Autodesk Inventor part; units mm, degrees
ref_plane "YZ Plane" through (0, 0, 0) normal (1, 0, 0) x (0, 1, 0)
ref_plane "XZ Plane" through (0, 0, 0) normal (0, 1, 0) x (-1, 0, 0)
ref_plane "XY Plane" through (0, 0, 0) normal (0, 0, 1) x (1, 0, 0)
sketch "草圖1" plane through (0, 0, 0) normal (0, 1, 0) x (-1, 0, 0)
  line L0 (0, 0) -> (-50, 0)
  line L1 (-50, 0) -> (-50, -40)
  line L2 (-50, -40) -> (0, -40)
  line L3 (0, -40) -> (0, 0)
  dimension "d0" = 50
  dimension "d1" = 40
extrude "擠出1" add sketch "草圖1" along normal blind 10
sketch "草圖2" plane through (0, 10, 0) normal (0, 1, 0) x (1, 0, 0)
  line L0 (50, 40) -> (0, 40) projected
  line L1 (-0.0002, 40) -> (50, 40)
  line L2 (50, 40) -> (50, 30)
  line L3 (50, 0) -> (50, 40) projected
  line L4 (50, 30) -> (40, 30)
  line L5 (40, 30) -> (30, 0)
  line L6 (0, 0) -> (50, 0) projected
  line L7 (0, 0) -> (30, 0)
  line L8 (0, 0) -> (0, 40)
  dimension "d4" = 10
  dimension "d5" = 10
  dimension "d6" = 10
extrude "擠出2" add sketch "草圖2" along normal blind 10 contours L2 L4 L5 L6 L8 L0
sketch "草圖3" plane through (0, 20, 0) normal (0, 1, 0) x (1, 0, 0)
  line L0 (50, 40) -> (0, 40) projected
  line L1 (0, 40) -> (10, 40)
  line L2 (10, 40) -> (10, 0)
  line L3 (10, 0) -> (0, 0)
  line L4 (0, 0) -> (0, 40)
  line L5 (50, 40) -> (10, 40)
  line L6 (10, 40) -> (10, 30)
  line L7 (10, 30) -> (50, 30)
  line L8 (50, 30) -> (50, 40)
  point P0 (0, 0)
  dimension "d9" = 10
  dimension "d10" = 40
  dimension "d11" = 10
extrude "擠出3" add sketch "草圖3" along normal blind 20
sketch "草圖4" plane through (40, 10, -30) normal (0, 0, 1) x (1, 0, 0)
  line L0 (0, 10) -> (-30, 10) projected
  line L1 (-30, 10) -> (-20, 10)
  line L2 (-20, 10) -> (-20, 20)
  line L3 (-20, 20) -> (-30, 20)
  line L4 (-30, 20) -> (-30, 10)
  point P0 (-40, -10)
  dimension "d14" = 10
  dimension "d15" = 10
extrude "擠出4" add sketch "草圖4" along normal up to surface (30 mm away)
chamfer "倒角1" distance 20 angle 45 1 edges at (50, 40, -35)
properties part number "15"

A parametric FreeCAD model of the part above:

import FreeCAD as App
import Part
import Sketcher

V = App.Vector
Q = App.Units.Quantity


def edges_at(feature, points):
    """Names of the edges that pass closest to the given points."""
    edges = feature.Shape.Edges
    near = lambda p: min(range(len(edges)), key=lambda i: edges[i].distToShape(Part.Vertex(*p))[0])
    return sorted({f"Edge{near(p) + 1}" for p in points})

doc = App.newDocument("Part")
body = doc.addObject("PartDesign::Body", "Body")

sketch1 = body.newObject("Sketcher::SketchObject", "Sketch")
sketch1.AttachmentSupport = (doc.getObject("XZ_Plane"), [""])
sketch1.MapMode = "FlatFace"
sketch1.addGeometry(Part.LineSegment(V(0, -40, 0), V(0, 0, 0)), False)
sketch1.addGeometry(Part.LineSegment(V(0, 0, 0), V(50, 0, 0)), False)
sketch1.addGeometry(Part.LineSegment(V(50, 0, 0), V(50, -40, 0)), False)
sketch1.addGeometry(Part.LineSegment(V(50, -40, 0), V(0, -40, 0)), False)
sketch1.addConstraint(Sketcher.Constraint("Coincident", 0, 2, 1, 1))
sketch1.addConstraint(Sketcher.Constraint("Coincident", 1, 2, 2, 1))
sketch1.addConstraint(Sketcher.Constraint("Coincident", 2, 2, 3, 1))
sketch1.addConstraint(Sketcher.Constraint("Coincident", 3, 2, 0, 1))
sketch1.addConstraint(Sketcher.Constraint("Vertical", 0))
sketch1.addConstraint(Sketcher.Constraint("Horizontal", 1))
sketch1.addConstraint(Sketcher.Constraint("Vertical", 2))
sketch1.addConstraint(Sketcher.Constraint("Horizontal", 3))
sketch1.addConstraint(Sketcher.Constraint("Coincident", 0, 2, -1, 1))
sketch1.addConstraint(Sketcher.Constraint("DistanceX", 1, 1, 1, 2, Q("1.9685 in")))
sketch1.addConstraint(Sketcher.Constraint("DistanceY", 0, 1, 0, 2, Q("1.5748 in")))
pad1 = body.newObject("PartDesign::Pad", "Pad")
pad1.Profile = sketch1
pad1.Length = Q("0.3937008 in")
pad1.Reversed = True

sketch2 = body.newObject("Sketcher::SketchObject", "Sketch001")
sketch2.AttachmentSupport = (doc.getObject("XZ_Plane"), [""])
sketch2.MapMode = "FlatFace"
sketch2.AttachmentOffset = App.Placement(V(0, 0, -0.3937008 * 25.4), App.Rotation())
sketch2.addGeometry(Part.LineSegment(V(50, -30, 0), V(50, -40, 0)), False)
sketch2.addGeometry(Part.LineSegment(V(50, -40, 0), V(0, -40, 0)), False)
sketch2.addGeometry(Part.LineSegment(V(0, -40, 0), V(0, 0, 0)), False)
sketch2.addGeometry(Part.LineSegment(V(0, 0, 0), V(30, 0, 0)), False)
sketch2.addGeometry(Part.LineSegment(V(30, 0, 0), V(40, -30, 0)), False)
sketch2.addGeometry(Part.LineSegment(V(40, -30, 0), V(50, -30, 0)), False)
sketch2.addConstraint(Sketcher.Constraint("Coincident", 0, 2, 1, 1))
sketch2.addConstraint(Sketcher.Constraint("Coincident", 1, 2, 2, 1))
sketch2.addConstraint(Sketcher.Constraint("Coincident", 2, 2, 3, 1))
sketch2.addConstraint(Sketcher.Constraint("Coincident", 3, 2, 4, 1))
sketch2.addConstraint(Sketcher.Constraint("Coincident", 4, 2, 5, 1))
sketch2.addConstraint(Sketcher.Constraint("Coincident", 5, 2, 0, 1))
sketch2.addConstraint(Sketcher.Constraint("Vertical", 0))
sketch2.addConstraint(Sketcher.Constraint("Horizontal", 1))
sketch2.addConstraint(Sketcher.Constraint("Vertical", 2))
sketch2.addConstraint(Sketcher.Constraint("Horizontal", 3))
sketch2.addConstraint(Sketcher.Constraint("Horizontal", 5))
sketch2.addConstraint(Sketcher.Constraint("Coincident", 2, 2, -1, 1))
sketch2.addConstraint(Sketcher.Constraint("Equal", 5, 0))
sketch2.addConstraint(Sketcher.Constraint("DistanceX", 5, 1, 5, 2, Q("0.3937 in")))
sketch2.addConstraint(Sketcher.Constraint("DistanceX", 3, 2, 4, 2, Q("0.3937 in")))
sketch2.addConstraint(Sketcher.Constraint("Distance", 4, Q("1.245 in")))
sketch2.addConstraint(Sketcher.Constraint("DistanceX", 1, 2, 1, 1, Q("1.9685 in")))
pad2 = body.newObject("PartDesign::Pad", "Pad001")
pad2.Profile = sketch2
pad2.Length = Q("0.3937008 in")
pad2.Reversed = True

sketch3 = body.newObject("Sketcher::SketchObject", "Sketch002")
sketch3.AttachmentSupport = (doc.getObject("XZ_Plane"), [""])
sketch3.MapMode = "FlatFace"
sketch3.AttachmentOffset = App.Placement(V(0, 0, -0.7874016 * 25.4), App.Rotation())
sketch3.addGeometry(Part.LineSegment(V(50, -30, 0), V(50, -40, 0)), False)
sketch3.addGeometry(Part.LineSegment(V(50, -40, 0), V(0, -40, 0)), False)
sketch3.addGeometry(Part.LineSegment(V(0, -40, 0), V(0, 0, 0)), False)
sketch3.addGeometry(Part.LineSegment(V(0, 0, 0), V(10, 0, 0)), False)
sketch3.addGeometry(Part.LineSegment(V(10, 0, 0), V(10, -30, 0)), False)
sketch3.addGeometry(Part.LineSegment(V(10, -30, 0), V(50, -30, 0)), False)
sketch3.addConstraint(Sketcher.Constraint("Coincident", 0, 2, 1, 1))
sketch3.addConstraint(Sketcher.Constraint("Coincident", 1, 2, 2, 1))
sketch3.addConstraint(Sketcher.Constraint("Coincident", 2, 2, 3, 1))
sketch3.addConstraint(Sketcher.Constraint("Coincident", 3, 2, 4, 1))
sketch3.addConstraint(Sketcher.Constraint("Coincident", 4, 2, 5, 1))
sketch3.addConstraint(Sketcher.Constraint("Coincident", 5, 2, 0, 1))
sketch3.addConstraint(Sketcher.Constraint("Vertical", 0))
sketch3.addConstraint(Sketcher.Constraint("Horizontal", 1))
sketch3.addConstraint(Sketcher.Constraint("Vertical", 2))
sketch3.addConstraint(Sketcher.Constraint("Horizontal", 3))
sketch3.addConstraint(Sketcher.Constraint("Vertical", 4))
sketch3.addConstraint(Sketcher.Constraint("Horizontal", 5))
sketch3.addConstraint(Sketcher.Constraint("Coincident", 2, 2, -1, 1))
sketch3.addConstraint(Sketcher.Constraint("Equal", 3, 0))
sketch3.addConstraint(Sketcher.Constraint("Equal", 5, 2))
sketch3.addConstraint(Sketcher.Constraint("DistanceX", 3, 1, 3, 2, Q("0.3937 in")))
sketch3.addConstraint(Sketcher.Constraint("DistanceX", 5, 1, 5, 2, Q("1.5748 in")))
pad3 = body.newObject("PartDesign::Pad", "Pad002")
pad3.Profile = sketch3
pad3.Length = Q("0.7874016 in")
pad3.Reversed = True

sketch4 = body.newObject("Sketcher::SketchObject", "Sketch003")
sketch4.AttachmentSupport = (doc.getObject("XY_Plane"), [""])
sketch4.MapMode = "FlatFace"
sketch4.AttachmentOffset = App.Placement(V(0, 0, -1.1811024 * 25.4), App.Rotation())
sketch4.addGeometry(Part.LineSegment(V(10, 20, 0), V(20, 20, 0)), False)
sketch4.addGeometry(Part.LineSegment(V(20, 20, 0), V(20, 30, 0)), False)
sketch4.addGeometry(Part.LineSegment(V(20, 30, 0), V(10, 30, 0)), False)
sketch4.addGeometry(Part.LineSegment(V(10, 30, 0), V(10, 20, 0)), False)
sketch4.addConstraint(Sketcher.Constraint("Coincident", 0, 2, 1, 1))
sketch4.addConstraint(Sketcher.Constraint("Coincident", 1, 2, 2, 1))
sketch4.addConstraint(Sketcher.Constraint("Coincident", 2, 2, 3, 1))
sketch4.addConstraint(Sketcher.Constraint("Coincident", 3, 2, 0, 1))
sketch4.addConstraint(Sketcher.Constraint("Horizontal", 0))
sketch4.addConstraint(Sketcher.Constraint("Vertical", 1))
sketch4.addConstraint(Sketcher.Constraint("Horizontal", 2))
sketch4.addConstraint(Sketcher.Constraint("Vertical", 3))
sketch4.addConstraint(Sketcher.Constraint("Equal", 2, 1))
sketch4.addConstraint(Sketcher.Constraint("DistanceX", 0, 1, 0, 2, Q("0.3937 in")))
sketch4.addConstraint(Sketcher.Constraint("DistanceX", -1, 1, 2, 2, Q("0.3937 in")))
sketch4.addConstraint(Sketcher.Constraint("DistanceY", -1, 1, 0, 2, Q("0.7874 in")))
pad4 = body.newObject("PartDesign::Pad", "Pad003")
pad4.Profile = sketch4
pad4.Length = Q("1.1811024 in")
doc.recompute()

chamfer = body.newObject("PartDesign::Chamfer", "Chamfer")
chamfer.Base = (pad4, edges_at(pad4, [(50, 40, -35)]))
chamfer.Size = Q("0.7874016 in")

doc.recompute()
